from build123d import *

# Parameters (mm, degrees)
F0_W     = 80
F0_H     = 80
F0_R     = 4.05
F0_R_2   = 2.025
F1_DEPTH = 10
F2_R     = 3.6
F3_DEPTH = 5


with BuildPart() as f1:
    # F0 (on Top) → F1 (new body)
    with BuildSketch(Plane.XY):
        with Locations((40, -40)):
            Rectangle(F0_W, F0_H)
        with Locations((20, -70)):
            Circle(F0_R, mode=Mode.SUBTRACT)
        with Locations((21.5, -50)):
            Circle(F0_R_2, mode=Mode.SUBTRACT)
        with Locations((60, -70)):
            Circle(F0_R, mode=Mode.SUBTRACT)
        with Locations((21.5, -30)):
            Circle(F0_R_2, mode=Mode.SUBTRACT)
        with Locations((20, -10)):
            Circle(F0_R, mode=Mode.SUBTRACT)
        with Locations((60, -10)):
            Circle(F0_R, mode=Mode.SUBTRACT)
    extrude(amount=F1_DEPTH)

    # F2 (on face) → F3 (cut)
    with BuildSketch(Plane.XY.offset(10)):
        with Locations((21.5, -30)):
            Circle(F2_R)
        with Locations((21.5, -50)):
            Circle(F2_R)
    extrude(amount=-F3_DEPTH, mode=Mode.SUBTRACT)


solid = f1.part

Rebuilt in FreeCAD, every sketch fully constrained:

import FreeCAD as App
import Part
import Sketcher

V = App.Vector

doc = App.newDocument("Part")
body = doc.addObject("PartDesign::Body", "Body")

# Sketch on XY plane
sketch1 = doc.addObject("Sketcher::SketchObject", "Sketch")
body.addObject(sketch1)
sketch1.AttachmentSupport = (doc.XY_Plane, [""])
sketch1.MapMode = "FlatFace"
sketch1.addGeometry(Part.LineSegment(V(0, 0, 0), V(0, -80, 0)), False)
sketch1.addGeometry(Part.LineSegment(V(0, -80, 0), V(80, -80, 0)), False)
sketch1.addGeometry(Part.LineSegment(V(80, -80, 0), V(80, 0, 0)), False)
sketch1.addGeometry(Part.LineSegment(V(80, 0, 0), V(0, 0, 0)), False)
sketch1.addGeometry(Part.Circle(V(20, -70, 0), V(0, 0, 1), 4), False)
sketch1.addGeometry(Part.Circle(V(21.5, -50, 0), V(0, 0, 1), 2), False)
sketch1.addGeometry(Part.Circle(V(60, -70, 0), V(0, 0, 1), 4), False)
sketch1.addGeometry(Part.Circle(V(21.5, -30, 0), V(0, 0, 1), 2), False)
sketch1.addGeometry(Part.Circle(V(20, -10, 0), V(0, 0, 1), 4), False)
sketch1.addGeometry(Part.Circle(V(60, -10, 0), V(0, 0, 1), 4), False)
sketch1.addConstraint(Sketcher.Constraint("Coincident", 0, 2, 1, 1))
sketch1.addConstraint(Sketcher.Constraint("Coincident", 1, 2, 2, 1))
sketch1.addConstraint(Sketcher.Constraint("Coincident", 2, 2, 3, 1))
sketch1.addConstraint(Sketcher.Constraint("Coincident", 3, 2, 0, 1))
sketch1.addConstraint(Sketcher.Constraint("Vertical", 0))
sketch1.addConstraint(Sketcher.Constraint("Horizontal", 1))
sketch1.addConstraint(Sketcher.Constraint("Vertical", 2))
sketch1.addConstraint(Sketcher.Constraint("Horizontal", 3))
sketch1.addConstraint(Sketcher.Constraint("Coincident", 3, 2, -1, 1))
sketch1.addConstraint(Sketcher.Constraint("Equal", 4, 6))
sketch1.addConstraint(Sketcher.Constraint("Equal", 5, 7))
sketch1.addConstraint(Sketcher.Constraint("Equal", 6, 8))
sketch1.addConstraint(Sketcher.Constraint("Equal", 8, 9))
sketch1.addConstraint(Sketcher.Constraint("Horizontal", 4, 3, 6, 3))
sketch1.addConstraint(Sketcher.Constraint("Horizontal", 8, 3, 9, 3))
sketch1.addConstraint(Sketcher.Constraint("Vertical", 5, 3, 7, 3))
sketch1.addConstraint(Sketcher.Constraint("Vertical", 4, 3, 8, 3))
sketch1.addConstraint(Sketcher.Constraint("Vertical", 6, 3, 9, 3))
sketch1.addConstraint(Sketcher.Constraint("Equal", 3, 0))
sketch1.addConstraint(Sketcher.Constraint("Diameter", 4, 8.1))
sketch1.addConstraint(Sketcher.Constraint("Diameter", 5, 4.05))
sketch1.addConstraint(Sketcher.Constraint("DistanceX", 1, 1, 1, 2, 80.0))
sketch1.addConstraint(Sketcher.Constraint("DistanceX", -1, 1, 4, 3, 20.0))
sketch1.addConstraint(Sketcher.Constraint("DistanceY", 4, 3, -1, 1, 70.0))
sketch1.addConstraint(Sketcher.Constraint("DistanceY", 5, 3, -1, 1, 50.0))
sketch1.addConstraint(Sketcher.Constraint("DistanceX", -1, 1, 6, 3, 60.0))
sketch1.addConstraint(Sketcher.Constraint("DistanceY", 7, 3, -1, 1, 30.0))
sketch1.addConstraint(Sketcher.Constraint("DistanceY", 8, 3, -1, 1, 10.0))
sketch1.addConstraint(Sketcher.Constraint("DistanceX", -1, 1, 5, 3, 21.5))
pad1 = doc.addObject("PartDesign::Pad", "Pad")
body.addObject(pad1)
pad1.Profile = sketch1
pad1.Length = 10

# Sketch on XY plane
sketch2 = doc.addObject("Sketcher::SketchObject", "Sketch001")
body.addObject(sketch2)
sketch2.AttachmentSupport = (doc.XY_Plane, [""])
sketch2.MapMode = "FlatFace"
sketch2.AttachmentOffset = App.Placement(V(0, 0, 10), App.Rotation())
sketch2.addGeometry(Part.Circle(V(21.5, -30, 0), V(0, 0, 1), 3.6), False)
sketch2.addGeometry(Part.Circle(V(21.5, -50, 0), V(0, 0, 1), 3.6), False)
sketch2.addConstraint(Sketcher.Constraint("Equal", 0, 1))
sketch2.addConstraint(Sketcher.Constraint("Vertical", 0, 3, 1, 3))
sketch2.addConstraint(Sketcher.Constraint("Diameter", 0, 7.2))
sketch2.addConstraint(Sketcher.Constraint("DistanceY", 0, 3, -1, 1, 30.0))
sketch2.addConstraint(Sketcher.Constraint("DistanceY", 1, 3, -1, 1, 50.0))
sketch2.addConstraint(Sketcher.Constraint("DistanceX", -1, 1, 0, 3, 21.5))
pocket1 = doc.addObject("PartDesign::Pocket", "Pocket")
body.addObject(pocket1)
pocket1.Profile = sketch2
pocket1.Length = 5

doc.recompute()
